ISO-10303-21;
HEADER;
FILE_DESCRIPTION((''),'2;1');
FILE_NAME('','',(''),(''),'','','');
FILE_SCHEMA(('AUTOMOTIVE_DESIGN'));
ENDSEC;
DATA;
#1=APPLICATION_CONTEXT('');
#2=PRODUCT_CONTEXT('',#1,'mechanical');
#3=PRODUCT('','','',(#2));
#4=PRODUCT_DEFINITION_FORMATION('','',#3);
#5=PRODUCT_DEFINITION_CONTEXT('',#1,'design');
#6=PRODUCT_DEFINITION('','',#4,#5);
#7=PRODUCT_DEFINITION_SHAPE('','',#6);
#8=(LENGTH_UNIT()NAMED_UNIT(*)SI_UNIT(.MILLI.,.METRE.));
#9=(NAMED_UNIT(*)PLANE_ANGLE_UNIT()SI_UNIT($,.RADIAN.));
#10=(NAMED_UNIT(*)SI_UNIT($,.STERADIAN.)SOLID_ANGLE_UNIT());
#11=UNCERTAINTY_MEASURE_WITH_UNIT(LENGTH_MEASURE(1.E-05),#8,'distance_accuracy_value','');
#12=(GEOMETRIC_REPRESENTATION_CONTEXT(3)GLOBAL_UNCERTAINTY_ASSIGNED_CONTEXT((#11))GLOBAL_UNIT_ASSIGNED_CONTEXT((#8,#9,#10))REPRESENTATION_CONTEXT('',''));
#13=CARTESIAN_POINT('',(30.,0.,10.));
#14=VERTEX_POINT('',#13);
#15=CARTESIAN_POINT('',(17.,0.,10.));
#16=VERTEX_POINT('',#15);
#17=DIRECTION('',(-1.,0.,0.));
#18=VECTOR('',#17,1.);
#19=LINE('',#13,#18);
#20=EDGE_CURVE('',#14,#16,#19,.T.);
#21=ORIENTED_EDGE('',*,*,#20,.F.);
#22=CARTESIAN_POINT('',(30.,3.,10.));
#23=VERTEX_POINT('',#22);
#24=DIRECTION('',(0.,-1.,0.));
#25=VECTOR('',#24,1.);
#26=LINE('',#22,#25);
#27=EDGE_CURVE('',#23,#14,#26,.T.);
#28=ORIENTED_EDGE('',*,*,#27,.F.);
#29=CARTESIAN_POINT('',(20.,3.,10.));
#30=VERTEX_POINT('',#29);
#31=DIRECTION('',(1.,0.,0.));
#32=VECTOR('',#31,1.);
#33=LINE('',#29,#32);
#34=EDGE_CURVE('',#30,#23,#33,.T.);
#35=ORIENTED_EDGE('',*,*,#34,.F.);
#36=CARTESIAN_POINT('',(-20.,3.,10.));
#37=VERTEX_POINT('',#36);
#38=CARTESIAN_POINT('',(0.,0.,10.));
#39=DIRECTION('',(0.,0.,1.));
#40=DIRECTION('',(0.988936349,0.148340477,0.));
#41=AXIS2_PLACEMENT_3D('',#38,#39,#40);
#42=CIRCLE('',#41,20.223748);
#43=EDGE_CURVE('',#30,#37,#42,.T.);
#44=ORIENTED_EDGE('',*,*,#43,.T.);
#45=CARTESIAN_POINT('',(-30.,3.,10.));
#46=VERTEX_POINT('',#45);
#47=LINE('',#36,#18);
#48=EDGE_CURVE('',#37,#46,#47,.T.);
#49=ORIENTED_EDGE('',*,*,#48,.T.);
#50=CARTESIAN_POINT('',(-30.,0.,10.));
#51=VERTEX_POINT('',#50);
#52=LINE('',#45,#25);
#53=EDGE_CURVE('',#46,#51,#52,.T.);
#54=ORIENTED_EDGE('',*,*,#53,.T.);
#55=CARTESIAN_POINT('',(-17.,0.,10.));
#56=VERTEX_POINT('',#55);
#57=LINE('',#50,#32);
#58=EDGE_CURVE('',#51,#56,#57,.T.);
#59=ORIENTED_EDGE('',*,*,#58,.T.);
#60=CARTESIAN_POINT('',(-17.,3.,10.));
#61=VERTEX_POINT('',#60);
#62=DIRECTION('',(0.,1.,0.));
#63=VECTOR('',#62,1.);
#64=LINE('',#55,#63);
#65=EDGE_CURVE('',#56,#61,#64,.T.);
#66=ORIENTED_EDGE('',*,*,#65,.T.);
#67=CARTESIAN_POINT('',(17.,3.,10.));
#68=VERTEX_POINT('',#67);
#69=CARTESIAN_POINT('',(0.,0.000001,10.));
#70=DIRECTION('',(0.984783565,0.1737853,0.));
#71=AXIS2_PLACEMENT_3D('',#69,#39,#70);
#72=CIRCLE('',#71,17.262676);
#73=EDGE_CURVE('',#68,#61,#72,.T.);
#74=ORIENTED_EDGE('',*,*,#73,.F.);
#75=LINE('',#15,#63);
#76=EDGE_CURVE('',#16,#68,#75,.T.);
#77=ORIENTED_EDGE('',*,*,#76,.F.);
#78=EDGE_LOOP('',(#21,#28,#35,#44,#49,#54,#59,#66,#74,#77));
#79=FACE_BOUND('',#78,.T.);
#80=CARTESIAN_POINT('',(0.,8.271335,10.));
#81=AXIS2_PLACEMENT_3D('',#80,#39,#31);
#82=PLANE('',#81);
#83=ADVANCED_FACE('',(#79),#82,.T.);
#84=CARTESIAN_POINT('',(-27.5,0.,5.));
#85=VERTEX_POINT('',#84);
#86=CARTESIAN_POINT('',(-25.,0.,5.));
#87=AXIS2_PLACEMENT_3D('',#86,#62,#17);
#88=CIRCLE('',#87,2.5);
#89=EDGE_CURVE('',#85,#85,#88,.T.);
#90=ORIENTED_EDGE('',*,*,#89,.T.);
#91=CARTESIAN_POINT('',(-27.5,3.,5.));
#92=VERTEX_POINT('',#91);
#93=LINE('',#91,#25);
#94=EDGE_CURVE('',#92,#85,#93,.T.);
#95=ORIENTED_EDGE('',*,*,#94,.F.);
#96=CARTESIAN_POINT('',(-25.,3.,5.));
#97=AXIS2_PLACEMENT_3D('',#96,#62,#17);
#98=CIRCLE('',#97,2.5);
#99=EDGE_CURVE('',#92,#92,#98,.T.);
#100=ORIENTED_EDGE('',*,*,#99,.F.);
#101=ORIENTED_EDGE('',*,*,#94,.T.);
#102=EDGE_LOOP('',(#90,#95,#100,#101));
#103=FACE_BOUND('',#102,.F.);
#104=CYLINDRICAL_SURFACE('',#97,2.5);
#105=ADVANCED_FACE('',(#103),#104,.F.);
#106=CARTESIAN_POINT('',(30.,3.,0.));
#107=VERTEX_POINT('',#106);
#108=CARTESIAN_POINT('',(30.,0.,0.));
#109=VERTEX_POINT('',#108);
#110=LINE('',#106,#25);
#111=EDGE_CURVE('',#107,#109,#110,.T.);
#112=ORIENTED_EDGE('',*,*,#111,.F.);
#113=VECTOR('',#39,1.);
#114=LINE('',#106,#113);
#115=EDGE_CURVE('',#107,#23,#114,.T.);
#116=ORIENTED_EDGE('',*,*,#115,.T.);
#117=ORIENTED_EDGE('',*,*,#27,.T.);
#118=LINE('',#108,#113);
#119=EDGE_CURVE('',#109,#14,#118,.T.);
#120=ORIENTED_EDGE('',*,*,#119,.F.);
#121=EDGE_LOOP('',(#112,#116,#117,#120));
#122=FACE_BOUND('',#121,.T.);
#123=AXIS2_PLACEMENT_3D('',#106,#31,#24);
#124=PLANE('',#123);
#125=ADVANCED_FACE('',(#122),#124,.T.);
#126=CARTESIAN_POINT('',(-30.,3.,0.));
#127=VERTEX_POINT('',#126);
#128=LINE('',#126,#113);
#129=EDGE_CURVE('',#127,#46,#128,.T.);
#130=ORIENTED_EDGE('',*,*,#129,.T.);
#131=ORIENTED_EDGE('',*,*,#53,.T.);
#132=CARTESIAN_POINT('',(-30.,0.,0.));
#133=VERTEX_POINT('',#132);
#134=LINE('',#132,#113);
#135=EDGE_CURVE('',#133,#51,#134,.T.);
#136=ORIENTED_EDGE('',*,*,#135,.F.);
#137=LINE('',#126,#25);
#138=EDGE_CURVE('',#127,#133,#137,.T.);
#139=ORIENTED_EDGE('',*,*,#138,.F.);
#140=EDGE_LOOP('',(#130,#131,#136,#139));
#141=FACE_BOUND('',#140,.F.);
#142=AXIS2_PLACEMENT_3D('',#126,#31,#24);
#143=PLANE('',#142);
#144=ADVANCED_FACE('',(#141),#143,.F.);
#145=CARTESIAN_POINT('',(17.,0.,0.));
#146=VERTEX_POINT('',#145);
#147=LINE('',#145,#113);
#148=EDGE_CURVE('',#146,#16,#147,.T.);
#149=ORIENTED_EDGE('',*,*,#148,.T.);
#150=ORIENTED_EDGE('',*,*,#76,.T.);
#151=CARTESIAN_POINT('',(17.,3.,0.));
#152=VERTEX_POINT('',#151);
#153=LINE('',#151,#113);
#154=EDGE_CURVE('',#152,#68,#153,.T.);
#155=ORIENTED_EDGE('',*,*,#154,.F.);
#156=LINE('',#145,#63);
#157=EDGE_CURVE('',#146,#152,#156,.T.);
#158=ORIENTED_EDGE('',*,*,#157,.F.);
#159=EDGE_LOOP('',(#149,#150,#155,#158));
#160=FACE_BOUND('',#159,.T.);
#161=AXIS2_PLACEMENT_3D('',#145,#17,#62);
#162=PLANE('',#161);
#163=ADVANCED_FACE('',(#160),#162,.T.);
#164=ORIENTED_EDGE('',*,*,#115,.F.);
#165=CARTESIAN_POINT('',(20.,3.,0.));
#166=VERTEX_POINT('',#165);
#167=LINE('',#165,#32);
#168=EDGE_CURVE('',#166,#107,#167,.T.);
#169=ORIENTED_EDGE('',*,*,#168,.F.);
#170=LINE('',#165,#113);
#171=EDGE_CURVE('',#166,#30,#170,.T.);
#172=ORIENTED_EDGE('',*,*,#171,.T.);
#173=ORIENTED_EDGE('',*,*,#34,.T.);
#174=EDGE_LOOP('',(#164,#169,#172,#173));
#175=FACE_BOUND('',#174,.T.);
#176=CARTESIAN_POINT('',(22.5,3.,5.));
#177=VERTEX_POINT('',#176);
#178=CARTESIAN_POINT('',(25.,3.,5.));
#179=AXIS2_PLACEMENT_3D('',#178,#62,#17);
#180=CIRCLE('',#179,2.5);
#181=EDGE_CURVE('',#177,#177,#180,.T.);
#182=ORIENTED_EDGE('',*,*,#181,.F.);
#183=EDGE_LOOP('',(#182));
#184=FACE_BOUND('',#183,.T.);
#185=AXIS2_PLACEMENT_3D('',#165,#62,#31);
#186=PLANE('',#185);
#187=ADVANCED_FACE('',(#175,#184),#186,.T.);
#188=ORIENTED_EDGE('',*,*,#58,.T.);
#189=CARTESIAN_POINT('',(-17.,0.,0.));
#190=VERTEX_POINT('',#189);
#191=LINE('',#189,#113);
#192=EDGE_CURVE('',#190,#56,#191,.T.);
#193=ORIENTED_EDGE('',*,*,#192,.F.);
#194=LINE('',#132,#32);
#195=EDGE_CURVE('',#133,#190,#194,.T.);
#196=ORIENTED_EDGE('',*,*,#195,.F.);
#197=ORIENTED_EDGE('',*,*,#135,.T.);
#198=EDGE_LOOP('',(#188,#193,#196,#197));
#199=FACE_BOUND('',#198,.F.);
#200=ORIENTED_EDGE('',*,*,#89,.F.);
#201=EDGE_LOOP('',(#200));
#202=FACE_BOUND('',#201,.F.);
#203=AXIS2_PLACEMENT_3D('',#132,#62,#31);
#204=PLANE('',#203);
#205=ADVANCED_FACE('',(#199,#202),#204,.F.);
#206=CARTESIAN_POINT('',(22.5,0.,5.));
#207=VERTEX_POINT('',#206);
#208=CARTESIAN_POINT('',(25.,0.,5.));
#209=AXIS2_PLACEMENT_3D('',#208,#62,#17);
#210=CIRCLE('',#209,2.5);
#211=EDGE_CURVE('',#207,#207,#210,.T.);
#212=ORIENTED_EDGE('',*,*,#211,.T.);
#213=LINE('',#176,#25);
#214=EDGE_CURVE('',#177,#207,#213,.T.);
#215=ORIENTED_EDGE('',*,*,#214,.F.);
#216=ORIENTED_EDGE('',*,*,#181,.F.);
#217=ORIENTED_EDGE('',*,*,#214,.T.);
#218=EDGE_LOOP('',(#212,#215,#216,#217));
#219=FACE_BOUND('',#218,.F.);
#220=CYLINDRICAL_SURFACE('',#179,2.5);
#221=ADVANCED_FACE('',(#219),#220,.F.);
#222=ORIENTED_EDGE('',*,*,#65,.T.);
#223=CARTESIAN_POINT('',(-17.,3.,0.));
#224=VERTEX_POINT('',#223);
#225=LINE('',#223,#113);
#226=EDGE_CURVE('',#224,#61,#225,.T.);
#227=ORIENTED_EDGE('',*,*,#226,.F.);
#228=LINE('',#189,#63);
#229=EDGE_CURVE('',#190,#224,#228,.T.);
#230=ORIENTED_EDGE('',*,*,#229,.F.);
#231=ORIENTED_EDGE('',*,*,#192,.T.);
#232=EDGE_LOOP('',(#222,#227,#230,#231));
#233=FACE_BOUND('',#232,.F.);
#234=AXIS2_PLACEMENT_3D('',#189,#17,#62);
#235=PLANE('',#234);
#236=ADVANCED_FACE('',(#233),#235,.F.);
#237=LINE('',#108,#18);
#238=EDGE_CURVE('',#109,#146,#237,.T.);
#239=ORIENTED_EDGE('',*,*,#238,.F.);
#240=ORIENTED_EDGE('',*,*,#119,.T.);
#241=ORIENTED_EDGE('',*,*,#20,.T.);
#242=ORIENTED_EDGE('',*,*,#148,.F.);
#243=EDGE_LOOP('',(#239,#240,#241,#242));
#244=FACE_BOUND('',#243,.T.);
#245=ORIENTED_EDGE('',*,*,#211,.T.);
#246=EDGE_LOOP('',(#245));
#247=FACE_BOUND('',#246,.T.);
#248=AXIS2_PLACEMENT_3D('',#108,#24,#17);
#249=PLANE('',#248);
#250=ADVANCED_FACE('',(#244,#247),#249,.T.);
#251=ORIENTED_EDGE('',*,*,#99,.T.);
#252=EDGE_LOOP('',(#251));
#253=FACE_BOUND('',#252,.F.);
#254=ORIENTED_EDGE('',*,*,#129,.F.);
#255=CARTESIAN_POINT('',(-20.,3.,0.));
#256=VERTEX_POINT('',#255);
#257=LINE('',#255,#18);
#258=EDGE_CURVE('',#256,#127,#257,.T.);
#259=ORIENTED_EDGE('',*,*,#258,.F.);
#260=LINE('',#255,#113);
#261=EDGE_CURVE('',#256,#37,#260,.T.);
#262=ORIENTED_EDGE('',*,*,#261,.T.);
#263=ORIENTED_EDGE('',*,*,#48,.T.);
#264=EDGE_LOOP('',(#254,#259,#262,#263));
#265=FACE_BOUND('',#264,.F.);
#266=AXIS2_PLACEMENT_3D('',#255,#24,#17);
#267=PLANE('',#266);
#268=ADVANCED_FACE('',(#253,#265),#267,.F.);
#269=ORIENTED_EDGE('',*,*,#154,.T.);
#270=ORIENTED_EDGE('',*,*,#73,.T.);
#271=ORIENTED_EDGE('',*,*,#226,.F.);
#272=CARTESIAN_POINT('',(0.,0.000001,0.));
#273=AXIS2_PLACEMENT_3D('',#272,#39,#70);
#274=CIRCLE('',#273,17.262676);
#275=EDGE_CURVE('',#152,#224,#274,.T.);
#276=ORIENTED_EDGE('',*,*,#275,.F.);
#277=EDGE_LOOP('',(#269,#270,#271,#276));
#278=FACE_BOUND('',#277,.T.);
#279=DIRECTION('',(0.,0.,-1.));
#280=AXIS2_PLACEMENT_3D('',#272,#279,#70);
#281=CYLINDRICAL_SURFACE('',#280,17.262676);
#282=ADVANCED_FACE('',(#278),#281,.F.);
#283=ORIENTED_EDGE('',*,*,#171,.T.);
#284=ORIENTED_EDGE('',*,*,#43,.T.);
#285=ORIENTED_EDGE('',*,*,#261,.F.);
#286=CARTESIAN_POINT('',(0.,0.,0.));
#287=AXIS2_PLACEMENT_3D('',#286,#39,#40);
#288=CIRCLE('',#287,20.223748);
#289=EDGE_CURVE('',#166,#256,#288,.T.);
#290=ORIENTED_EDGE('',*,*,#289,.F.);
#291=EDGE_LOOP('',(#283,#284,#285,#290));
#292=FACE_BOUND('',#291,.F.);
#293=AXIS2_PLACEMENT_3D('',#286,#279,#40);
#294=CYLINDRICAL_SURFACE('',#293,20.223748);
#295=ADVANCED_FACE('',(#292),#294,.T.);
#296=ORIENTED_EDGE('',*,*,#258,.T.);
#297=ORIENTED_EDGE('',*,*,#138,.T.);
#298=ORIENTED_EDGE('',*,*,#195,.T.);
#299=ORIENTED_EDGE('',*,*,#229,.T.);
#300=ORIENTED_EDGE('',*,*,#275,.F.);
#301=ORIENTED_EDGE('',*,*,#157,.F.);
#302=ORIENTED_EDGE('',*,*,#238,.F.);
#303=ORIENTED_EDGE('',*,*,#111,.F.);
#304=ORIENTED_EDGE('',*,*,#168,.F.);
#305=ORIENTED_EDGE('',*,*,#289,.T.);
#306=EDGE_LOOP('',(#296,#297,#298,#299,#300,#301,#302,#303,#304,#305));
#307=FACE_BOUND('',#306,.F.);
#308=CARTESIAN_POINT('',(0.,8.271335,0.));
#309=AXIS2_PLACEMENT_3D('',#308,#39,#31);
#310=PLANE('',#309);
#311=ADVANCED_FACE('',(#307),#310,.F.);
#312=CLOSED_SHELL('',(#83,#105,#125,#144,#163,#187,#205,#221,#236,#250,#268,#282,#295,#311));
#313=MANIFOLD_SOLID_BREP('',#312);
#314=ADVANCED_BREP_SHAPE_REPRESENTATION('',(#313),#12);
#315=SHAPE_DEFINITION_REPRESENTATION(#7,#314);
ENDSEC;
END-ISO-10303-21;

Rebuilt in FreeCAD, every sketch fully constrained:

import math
import FreeCAD as App
import Part
import Sketcher
from FreeCAD import Vector

doc = App.newDocument("Part")
body = doc.addObject("PartDesign::Body", "Body")

sketch1 = doc.addObject("Sketcher::SketchObject", "Sketch")
body.addObject(sketch1)
sketch1.AttachmentSupport = (doc.XY_Plane, [""])
sketch1.MapMode = "FlatFace"
sketch1.addGeometry([
    Part.ArcOfCircle(Part.Circle(Vector(0, 0, 0), Vector(0, 0, 1), 20.2), math.radians(9), math.radians(171)),
    Part.LineSegment(Vector(-20, 3, 0), Vector(-30, 3, 0)),
    Part.LineSegment(Vector(-30, 3, 0), Vector(-30, 0, 0)),
    Part.LineSegment(Vector(-30, 0, 0), Vector(-17, 0, 0)),
    Part.LineSegment(Vector(-17, 0, 0), Vector(-17, 3, 0)),
    Part.ArcOfCircle(Part.Circle(Vector(0, 0, 0), Vector(0, 0, 1), 17.3), math.radians(10), math.radians(170)),
    Part.LineSegment(Vector(17, 3, 0), Vector(17, 0, 0)),
    Part.LineSegment(Vector(17, 0, 0), Vector(30, 0, 0)),
    Part.LineSegment(Vector(30, 0, 0), Vector(30, 3, 0)),
    Part.LineSegment(Vector(30, 3, 0), Vector(20, 3, 0)),
], False)
sketch1.addConstraint([
    Sketcher.Constraint("Coincident", 0, 2, 1, 1),
    Sketcher.Constraint("Coincident", 1, 2, 2, 1),
    Sketcher.Constraint("Coincident", 2, 2, 3, 1),
    Sketcher.Constraint("Coincident", 3, 2, 4, 1),
    Sketcher.Constraint("Coincident", 4, 2, 5, 2),
    Sketcher.Constraint("Coincident", 5, 1, 6, 1),
    Sketcher.Constraint("Coincident", 6, 2, 7, 1),
    Sketcher.Constraint("Coincident", 7, 2, 8, 1),
    Sketcher.Constraint("Coincident", 8, 2, 9, 1),
    Sketcher.Constraint("Coincident", 9, 2, 0, 1),
    Sketcher.Constraint("Horizontal", 1),
    Sketcher.Constraint("Vertical", 2),
    Sketcher.Constraint("Horizontal", 3),
    Sketcher.Constraint("Vertical", 4),
    Sketcher.Constraint("Vertical", 6),
    Sketcher.Constraint("Horizontal", 7),
    Sketcher.Constraint("Vertical", 8),
    Sketcher.Constraint("Horizontal", 9),
    Sketcher.Constraint("Coincident", 0, 3, -1, 1),
    Sketcher.Constraint("Coincident", 5, 3, -1, 1),
    Sketcher.Constraint("Symmetric", 3, 2, 6, 2, -1, 1),
    Sketcher.Constraint("Symmetric", 2, 2, 7, 2, -2),
    Sketcher.Constraint("Horizontal", 1, 2, 4, 2),
    Sketcher.Constraint("Horizontal", 5, 1, 8, 2),
    Sketcher.Constraint("DistanceX", 1, 2, 1, 1, 10.0),
    Sketcher.Constraint("DistanceX", 3, 1, 3, 2, 13.0),
    Sketcher.Constraint("DistanceY", 2, 2, 2, 1, 3.0),
    Sketcher.Constraint("DistanceX", 0, 2, -1, 1, 20.0),
])
pad1 = doc.addObject("PartDesign::Pad", "Pad")
body.addObject(pad1)
pad1.Profile = sketch1
pad1.Length = 10

sketch2 = doc.addObject("Sketcher::SketchObject", "Sketch001")
body.addObject(sketch2)
sketch2.AttachmentSupport = (doc.XZ_Plane, [""])
sketch2.MapMode = "FlatFace"
sketch2.AttachmentOffset = App.Placement(Vector(0, 0, -3), App.Rotation())
sketch2.addGeometry([
    Part.Circle(Vector(25, 5, 0), Vector(0, 0, 1), 2.5),
    Part.Circle(Vector(-25, 5, 0), Vector(0, 0, 1), 2.5),
], False)
sketch2.addConstraint([
    Sketcher.Constraint("Equal", 0, 1),
    Sketcher.Constraint("Symmetric", 0, 3, 1, 3, -2),
    Sketcher.Constraint("Diameter", 0, 5.0),
    Sketcher.Constraint("DistanceX", -1, 1, 0, 3, 25.0),
    Sketcher.Constraint("DistanceY", -1, 1, 0, 3, 5.0),
])
pocket1 = doc.addObject("PartDesign::Pocket", "Pocket")
body.addObject(pocket1)
pocket1.Profile = sketch2
pocket1.Type = "ThroughAll"
pocket1.Reversed = True

doc.recompute()
